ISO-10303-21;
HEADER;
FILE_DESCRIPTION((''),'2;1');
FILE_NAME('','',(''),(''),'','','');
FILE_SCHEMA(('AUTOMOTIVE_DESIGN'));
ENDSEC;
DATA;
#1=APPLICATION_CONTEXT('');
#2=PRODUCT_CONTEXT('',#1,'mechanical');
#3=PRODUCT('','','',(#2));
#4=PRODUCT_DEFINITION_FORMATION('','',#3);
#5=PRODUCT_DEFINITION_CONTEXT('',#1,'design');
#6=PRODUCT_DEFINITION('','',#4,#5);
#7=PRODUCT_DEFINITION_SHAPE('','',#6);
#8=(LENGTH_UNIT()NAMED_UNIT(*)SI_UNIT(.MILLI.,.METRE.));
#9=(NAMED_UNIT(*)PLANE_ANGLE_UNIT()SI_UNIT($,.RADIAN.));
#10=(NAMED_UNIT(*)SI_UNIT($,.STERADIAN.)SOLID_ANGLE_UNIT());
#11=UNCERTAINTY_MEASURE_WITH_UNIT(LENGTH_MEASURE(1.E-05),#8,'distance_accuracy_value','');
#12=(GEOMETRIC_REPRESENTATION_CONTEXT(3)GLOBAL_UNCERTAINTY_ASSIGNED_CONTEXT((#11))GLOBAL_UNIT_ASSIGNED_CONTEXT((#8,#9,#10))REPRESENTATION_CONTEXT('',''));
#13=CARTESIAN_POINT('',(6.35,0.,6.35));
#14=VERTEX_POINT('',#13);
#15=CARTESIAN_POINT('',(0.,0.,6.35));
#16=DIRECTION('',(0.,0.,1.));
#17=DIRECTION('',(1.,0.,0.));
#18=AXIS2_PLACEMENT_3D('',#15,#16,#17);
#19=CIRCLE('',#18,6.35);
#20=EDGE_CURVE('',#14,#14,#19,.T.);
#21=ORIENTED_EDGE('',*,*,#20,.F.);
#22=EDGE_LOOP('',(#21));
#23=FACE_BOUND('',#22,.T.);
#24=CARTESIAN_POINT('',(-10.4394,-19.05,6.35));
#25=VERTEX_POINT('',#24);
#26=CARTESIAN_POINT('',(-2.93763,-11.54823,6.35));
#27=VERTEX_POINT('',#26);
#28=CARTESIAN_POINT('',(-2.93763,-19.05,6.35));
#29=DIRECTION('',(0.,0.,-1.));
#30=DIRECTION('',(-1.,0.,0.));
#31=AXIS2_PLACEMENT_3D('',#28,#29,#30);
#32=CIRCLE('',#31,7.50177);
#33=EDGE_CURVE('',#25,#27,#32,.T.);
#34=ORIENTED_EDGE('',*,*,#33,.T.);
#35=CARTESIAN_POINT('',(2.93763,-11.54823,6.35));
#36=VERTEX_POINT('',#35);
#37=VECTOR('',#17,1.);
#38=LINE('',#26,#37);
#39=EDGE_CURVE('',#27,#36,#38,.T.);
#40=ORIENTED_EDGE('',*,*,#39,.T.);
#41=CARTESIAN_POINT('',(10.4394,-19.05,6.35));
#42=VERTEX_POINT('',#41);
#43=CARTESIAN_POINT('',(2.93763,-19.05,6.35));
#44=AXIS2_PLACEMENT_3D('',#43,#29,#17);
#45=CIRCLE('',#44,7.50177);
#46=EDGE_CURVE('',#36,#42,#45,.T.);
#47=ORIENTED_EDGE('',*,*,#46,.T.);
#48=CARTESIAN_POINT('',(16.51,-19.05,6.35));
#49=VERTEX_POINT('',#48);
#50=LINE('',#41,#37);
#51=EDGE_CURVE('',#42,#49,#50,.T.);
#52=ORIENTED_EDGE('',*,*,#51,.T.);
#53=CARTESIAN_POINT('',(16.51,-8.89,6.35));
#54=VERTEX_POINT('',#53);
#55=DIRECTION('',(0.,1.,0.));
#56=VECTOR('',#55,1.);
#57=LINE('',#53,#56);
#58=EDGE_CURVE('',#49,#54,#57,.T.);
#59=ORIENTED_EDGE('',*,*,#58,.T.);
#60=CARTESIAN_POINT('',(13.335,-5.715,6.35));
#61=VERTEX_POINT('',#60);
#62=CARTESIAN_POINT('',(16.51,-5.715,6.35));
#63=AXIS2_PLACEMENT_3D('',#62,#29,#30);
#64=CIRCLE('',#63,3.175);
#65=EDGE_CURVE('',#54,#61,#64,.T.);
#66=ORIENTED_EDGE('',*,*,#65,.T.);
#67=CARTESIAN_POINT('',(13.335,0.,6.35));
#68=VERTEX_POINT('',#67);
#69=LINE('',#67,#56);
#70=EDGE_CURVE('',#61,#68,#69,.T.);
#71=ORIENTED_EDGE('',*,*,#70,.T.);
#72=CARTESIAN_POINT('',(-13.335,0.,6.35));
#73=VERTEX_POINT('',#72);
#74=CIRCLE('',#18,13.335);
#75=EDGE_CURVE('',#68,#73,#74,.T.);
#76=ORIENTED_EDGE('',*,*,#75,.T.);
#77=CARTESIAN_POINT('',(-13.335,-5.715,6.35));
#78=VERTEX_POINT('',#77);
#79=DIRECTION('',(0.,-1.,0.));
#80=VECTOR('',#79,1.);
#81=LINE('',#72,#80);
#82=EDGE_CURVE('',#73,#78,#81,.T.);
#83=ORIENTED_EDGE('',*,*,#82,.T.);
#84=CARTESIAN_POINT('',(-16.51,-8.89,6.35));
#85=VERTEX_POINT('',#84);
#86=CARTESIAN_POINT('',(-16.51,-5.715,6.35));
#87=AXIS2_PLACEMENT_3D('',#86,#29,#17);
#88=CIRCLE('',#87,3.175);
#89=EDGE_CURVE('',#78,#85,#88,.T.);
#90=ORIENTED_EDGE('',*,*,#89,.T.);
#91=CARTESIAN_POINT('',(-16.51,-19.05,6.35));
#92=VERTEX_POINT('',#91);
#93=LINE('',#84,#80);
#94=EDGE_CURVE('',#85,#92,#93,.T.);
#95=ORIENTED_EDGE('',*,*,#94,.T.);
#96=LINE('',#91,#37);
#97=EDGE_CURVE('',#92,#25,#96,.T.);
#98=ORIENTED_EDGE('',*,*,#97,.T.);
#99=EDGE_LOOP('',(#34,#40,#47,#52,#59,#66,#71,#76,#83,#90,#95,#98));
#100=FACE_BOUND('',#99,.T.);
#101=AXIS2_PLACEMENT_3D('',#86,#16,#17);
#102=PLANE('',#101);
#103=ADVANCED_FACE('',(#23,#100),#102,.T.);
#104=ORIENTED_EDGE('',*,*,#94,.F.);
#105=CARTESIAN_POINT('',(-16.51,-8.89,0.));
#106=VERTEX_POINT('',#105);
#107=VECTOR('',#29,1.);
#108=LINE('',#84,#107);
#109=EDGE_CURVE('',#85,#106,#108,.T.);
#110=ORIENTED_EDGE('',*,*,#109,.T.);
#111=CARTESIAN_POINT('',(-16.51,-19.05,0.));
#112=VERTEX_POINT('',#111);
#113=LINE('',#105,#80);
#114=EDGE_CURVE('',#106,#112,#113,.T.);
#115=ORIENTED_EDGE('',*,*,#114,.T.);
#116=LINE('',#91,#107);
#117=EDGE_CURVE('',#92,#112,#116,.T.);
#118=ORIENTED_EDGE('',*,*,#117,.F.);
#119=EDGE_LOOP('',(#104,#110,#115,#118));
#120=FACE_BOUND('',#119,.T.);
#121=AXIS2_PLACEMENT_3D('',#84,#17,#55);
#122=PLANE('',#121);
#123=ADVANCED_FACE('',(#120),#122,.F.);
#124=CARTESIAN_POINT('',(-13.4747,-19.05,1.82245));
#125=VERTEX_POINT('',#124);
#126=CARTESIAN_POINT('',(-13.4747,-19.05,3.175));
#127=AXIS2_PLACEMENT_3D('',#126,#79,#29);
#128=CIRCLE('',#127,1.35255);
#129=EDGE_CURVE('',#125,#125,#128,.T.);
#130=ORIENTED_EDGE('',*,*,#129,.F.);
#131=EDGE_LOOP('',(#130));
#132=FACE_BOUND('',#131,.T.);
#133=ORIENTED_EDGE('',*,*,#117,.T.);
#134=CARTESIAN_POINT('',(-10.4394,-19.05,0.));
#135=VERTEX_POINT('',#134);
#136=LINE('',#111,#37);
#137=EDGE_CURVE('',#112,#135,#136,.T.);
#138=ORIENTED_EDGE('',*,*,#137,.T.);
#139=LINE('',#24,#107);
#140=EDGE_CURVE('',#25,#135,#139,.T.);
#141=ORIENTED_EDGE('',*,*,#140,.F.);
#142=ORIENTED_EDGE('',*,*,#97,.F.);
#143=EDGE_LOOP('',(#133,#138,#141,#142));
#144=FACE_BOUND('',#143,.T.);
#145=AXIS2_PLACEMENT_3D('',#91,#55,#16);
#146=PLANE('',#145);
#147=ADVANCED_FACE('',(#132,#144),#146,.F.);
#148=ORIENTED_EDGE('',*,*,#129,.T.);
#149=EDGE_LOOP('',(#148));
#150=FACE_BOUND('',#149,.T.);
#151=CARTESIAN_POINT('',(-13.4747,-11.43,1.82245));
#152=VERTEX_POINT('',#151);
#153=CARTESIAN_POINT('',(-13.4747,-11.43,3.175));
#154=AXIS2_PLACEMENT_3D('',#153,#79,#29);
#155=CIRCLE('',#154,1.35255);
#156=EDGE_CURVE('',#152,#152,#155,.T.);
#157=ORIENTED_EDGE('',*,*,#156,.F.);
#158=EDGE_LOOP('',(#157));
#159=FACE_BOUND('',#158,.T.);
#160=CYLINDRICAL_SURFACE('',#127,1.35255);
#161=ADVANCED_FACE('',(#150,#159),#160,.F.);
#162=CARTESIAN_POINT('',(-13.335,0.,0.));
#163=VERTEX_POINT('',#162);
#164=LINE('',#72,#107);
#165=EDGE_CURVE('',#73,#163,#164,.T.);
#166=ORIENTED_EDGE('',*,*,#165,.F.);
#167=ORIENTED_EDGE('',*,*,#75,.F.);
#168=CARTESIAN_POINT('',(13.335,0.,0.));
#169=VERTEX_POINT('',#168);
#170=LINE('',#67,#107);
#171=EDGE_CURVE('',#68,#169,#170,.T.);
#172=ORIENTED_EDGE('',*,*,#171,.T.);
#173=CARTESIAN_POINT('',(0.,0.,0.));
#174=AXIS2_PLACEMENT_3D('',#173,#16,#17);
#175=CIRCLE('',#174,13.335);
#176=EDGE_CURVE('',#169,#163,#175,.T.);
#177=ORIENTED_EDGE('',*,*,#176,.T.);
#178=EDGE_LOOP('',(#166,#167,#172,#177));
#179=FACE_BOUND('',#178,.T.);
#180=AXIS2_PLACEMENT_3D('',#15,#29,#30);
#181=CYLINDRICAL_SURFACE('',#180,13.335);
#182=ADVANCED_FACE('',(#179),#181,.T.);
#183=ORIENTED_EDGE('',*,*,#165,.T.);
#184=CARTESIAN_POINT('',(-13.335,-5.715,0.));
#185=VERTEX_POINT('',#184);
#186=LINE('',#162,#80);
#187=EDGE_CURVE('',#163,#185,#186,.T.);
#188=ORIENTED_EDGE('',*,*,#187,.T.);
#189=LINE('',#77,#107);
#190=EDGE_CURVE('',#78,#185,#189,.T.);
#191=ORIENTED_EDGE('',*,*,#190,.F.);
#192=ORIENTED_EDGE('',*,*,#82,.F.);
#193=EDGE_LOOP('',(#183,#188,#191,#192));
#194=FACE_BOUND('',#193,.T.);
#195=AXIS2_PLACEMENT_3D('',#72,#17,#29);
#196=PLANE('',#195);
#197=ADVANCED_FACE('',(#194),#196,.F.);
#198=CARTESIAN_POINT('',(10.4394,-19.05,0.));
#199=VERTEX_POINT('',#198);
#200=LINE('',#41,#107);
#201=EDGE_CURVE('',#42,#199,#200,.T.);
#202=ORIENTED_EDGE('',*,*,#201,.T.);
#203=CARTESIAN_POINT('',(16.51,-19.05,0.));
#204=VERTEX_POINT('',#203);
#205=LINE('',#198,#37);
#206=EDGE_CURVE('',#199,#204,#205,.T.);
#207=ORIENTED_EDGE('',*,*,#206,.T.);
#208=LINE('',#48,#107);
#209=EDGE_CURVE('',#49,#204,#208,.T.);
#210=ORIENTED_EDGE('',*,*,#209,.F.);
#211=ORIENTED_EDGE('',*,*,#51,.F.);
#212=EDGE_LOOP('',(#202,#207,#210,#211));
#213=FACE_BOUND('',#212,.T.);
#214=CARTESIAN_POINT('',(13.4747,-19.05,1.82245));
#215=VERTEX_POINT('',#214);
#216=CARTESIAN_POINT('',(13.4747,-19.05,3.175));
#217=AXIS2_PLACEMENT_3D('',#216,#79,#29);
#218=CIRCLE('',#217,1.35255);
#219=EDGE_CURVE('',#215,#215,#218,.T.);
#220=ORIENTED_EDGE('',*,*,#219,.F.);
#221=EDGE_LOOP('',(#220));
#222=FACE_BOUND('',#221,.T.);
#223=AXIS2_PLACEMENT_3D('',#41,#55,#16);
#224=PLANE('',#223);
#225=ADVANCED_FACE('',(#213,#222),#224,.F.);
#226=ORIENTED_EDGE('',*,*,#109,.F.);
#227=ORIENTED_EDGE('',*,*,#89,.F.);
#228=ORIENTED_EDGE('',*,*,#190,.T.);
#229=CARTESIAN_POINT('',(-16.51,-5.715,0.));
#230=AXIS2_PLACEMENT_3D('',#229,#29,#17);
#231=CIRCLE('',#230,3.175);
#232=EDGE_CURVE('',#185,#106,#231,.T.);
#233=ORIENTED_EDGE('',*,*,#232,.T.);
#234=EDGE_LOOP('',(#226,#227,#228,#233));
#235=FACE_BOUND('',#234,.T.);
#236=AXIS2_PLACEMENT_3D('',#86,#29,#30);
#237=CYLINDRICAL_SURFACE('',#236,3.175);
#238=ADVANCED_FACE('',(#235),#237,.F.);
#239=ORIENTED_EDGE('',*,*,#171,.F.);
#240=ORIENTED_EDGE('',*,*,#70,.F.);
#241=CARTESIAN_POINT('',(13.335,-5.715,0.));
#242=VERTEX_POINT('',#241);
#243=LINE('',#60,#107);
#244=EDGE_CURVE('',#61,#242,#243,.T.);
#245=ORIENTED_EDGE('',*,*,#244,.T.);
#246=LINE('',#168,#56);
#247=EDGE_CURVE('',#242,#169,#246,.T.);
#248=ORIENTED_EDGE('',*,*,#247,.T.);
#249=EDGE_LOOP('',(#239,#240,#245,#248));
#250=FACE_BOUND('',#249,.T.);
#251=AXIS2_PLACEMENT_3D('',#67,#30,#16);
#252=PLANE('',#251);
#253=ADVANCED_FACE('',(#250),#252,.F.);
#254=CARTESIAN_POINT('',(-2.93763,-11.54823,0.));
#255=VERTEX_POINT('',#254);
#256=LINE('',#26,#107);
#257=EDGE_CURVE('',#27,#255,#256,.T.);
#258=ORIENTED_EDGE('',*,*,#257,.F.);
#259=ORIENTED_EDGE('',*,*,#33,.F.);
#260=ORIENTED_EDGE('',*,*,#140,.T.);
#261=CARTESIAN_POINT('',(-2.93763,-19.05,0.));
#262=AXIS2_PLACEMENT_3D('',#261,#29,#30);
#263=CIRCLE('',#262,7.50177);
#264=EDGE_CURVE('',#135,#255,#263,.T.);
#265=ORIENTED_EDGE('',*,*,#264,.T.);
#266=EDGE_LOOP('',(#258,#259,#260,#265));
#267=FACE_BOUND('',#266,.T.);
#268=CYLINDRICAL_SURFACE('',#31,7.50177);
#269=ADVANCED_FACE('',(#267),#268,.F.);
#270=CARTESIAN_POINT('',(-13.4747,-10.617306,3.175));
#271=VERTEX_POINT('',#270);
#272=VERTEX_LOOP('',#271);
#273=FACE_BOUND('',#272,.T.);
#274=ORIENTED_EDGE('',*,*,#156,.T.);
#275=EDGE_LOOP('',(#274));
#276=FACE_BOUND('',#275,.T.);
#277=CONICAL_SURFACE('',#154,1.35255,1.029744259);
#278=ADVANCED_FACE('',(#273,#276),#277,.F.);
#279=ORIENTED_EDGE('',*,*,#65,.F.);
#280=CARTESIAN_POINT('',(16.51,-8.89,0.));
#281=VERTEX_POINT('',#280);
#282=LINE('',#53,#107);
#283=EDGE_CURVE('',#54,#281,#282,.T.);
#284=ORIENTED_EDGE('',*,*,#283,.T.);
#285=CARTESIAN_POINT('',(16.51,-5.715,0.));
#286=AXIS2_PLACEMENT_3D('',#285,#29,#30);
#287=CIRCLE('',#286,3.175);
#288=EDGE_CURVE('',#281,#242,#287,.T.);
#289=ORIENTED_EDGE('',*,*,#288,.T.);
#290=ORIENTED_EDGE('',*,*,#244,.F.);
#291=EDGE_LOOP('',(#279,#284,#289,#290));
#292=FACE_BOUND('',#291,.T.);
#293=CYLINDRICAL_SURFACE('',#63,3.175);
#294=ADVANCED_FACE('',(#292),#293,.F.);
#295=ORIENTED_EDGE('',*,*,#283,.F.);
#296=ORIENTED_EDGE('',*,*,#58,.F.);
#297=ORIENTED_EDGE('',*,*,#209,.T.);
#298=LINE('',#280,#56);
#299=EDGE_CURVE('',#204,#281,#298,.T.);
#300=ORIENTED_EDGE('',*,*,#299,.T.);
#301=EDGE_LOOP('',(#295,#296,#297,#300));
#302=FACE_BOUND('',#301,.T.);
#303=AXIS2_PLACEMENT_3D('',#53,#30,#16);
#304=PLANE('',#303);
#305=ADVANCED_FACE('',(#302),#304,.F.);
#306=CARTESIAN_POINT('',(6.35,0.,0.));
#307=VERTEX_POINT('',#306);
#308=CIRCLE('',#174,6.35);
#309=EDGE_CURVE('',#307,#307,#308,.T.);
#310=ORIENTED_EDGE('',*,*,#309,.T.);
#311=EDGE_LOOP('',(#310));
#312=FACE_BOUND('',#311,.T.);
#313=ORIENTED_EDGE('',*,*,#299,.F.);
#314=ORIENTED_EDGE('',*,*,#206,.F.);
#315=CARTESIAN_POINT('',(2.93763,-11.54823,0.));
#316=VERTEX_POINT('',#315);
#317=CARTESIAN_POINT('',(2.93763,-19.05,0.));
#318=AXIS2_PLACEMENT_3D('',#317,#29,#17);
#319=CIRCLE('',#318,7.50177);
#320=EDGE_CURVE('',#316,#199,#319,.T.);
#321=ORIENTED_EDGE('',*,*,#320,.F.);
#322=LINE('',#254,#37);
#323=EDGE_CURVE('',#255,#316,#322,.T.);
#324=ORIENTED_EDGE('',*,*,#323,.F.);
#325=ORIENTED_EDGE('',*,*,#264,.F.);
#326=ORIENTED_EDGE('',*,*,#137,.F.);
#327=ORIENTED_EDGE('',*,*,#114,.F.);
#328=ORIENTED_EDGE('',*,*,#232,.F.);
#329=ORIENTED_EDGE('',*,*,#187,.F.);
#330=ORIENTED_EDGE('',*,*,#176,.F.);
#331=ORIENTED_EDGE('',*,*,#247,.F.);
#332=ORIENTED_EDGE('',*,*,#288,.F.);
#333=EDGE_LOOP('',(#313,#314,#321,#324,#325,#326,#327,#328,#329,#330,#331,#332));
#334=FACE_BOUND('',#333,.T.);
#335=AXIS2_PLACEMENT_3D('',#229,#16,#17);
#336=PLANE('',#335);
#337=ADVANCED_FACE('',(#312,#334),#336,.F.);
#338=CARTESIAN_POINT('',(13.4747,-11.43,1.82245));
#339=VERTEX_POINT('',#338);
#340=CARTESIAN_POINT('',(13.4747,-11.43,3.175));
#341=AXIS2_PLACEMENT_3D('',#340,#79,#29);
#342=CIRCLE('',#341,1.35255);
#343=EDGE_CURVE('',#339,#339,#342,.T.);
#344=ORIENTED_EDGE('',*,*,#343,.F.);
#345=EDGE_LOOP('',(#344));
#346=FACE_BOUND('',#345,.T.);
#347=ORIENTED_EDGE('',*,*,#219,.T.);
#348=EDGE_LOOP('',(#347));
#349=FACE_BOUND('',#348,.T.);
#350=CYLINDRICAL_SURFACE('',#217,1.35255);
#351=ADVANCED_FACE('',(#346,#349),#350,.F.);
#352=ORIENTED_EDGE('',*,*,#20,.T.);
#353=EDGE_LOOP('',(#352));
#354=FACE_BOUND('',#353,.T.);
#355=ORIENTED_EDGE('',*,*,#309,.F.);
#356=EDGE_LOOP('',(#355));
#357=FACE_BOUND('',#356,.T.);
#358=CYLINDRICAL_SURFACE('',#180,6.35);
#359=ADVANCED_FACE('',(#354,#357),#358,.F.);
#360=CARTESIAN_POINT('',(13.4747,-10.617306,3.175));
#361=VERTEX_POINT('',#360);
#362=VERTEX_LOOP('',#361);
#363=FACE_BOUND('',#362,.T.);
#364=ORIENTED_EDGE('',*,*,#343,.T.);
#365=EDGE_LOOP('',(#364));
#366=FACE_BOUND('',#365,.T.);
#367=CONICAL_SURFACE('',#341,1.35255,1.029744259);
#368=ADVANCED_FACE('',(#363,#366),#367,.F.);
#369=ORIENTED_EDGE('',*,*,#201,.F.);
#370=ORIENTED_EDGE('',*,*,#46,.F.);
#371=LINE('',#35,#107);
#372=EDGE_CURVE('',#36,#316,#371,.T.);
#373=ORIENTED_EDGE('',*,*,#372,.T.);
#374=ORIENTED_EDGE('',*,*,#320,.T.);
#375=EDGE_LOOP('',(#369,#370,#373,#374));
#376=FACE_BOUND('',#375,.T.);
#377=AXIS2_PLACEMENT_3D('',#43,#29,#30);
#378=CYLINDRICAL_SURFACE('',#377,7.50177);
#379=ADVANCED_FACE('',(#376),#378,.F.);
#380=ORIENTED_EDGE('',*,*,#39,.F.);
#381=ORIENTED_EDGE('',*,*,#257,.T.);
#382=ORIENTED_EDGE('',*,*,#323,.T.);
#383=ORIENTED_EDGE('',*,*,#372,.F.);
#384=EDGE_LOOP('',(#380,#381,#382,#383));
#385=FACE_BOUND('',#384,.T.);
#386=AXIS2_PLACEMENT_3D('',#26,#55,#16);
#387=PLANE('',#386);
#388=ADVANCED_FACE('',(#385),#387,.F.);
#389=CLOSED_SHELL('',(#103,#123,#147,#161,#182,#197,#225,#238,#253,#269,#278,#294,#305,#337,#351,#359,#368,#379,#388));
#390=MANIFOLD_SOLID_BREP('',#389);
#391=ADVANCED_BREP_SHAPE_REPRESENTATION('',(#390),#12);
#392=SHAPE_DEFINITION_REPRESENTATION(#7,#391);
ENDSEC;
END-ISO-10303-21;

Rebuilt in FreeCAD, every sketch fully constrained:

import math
import FreeCAD as App
import Part
import Sketcher
Q = App.Units.Quantity


def add_polygon(sketch, points):
    """Adds a closed chain of lines whose ends are joined by coincident constraints."""
    first, n = sketch.GeometryCount, len(points)
    for a, b in zip(points, points[1:] + points[:1]):
        sketch.addGeometry(Part.LineSegment(App.Vector(*a, 0), App.Vector(*b, 0)), False)
    for i in range(n):
        sketch.addConstraint(Sketcher.Constraint("Coincident", first + i, 2, first + (i + 1) % n, 1))

doc = App.newDocument("Part")
body = doc.addObject("PartDesign::Body", "Body")

sketch1 = body.newObject("Sketcher::SketchObject", "Sketch")
sketch1.AttachmentSupport = (doc.getObject("XY_Plane"), [""])
sketch1.MapMode = "FlatFace"
sketch1.addGeometry([
    Part.LineSegment(App.Vector(-13.3, 0, 0), App.Vector(-13.3, -5.7, 0)),
    Part.ArcOfCircle(Part.Circle(App.Vector(-16.5, -5.7, 0), App.Vector(0, 0, 1), 3.2), math.radians(-90), math.radians(0)),
    Part.LineSegment(App.Vector(-16.5, -8.9, 0), App.Vector(-16.5, -19.1, 0)),
    Part.LineSegment(App.Vector(-16.5, -19.1, 0), App.Vector(-10.4, -19.1, 0)),
    Part.ArcOfCircle(Part.Circle(App.Vector(-2.9, -19.1, 0), App.Vector(0, 0, 1), 7.5), math.radians(90), math.radians(180)),
    Part.LineSegment(App.Vector(-2.9, -11.5, 0), App.Vector(2.9, -11.5, 0)),
    Part.ArcOfCircle(Part.Circle(App.Vector(2.9, -19.1, 0), App.Vector(0, 0, 1), 7.5), math.radians(0), math.radians(90)),
    Part.LineSegment(App.Vector(10.4, -19.1, 0), App.Vector(16.5, -19.1, 0)),
    Part.LineSegment(App.Vector(16.5, -19.1, 0), App.Vector(16.5, -8.9, 0)),
    Part.ArcOfCircle(Part.Circle(App.Vector(16.5, -5.7, 0), App.Vector(0, 0, 1), 3.2), math.radians(-180), math.radians(-90)),
    Part.LineSegment(App.Vector(13.3, -5.7, 0), App.Vector(13.3, 0, 0)),
    Part.ArcOfCircle(Part.Circle(App.Vector(0, 0, 0), App.Vector(0, 0, 1), 13.3), math.radians(0), math.radians(180)),
    Part.Circle(App.Vector(0, 0, 0), App.Vector(0, 0, 1), 6.3),
], False)
sketch1.addConstraint([
    Sketcher.Constraint("Tangent", 0, 2, 1, 2),
    Sketcher.Constraint("Coincident", 1, 1, 2, 1),
    Sketcher.Constraint("Coincident", 2, 2, 3, 1),
    Sketcher.Constraint("Coincident", 3, 2, 4, 2),
    Sketcher.Constraint("Tangent", 4, 1, 5, 1),
    Sketcher.Constraint("Tangent", 5, 2, 6, 2),
    Sketcher.Constraint("Coincident", 6, 1, 7, 1),
    Sketcher.Constraint("Coincident", 7, 2, 8, 1),
    Sketcher.Constraint("Coincident", 8, 2, 9, 2),
    Sketcher.Constraint("Tangent", 9, 1, 10, 1),
    Sketcher.Constraint("Tangent", 10, 2, 11, 1),
    Sketcher.Constraint("Tangent", 11, 2, 0, 1),
    Sketcher.Constraint("Vertical", 0),
    Sketcher.Constraint("Vertical", 2),
    Sketcher.Constraint("Horizontal", 3),
    Sketcher.Constraint("Horizontal", 5),
    Sketcher.Constraint("Horizontal", 7),
    Sketcher.Constraint("Vertical", 8),
    Sketcher.Constraint("Vertical", 10),
    Sketcher.Constraint("Coincident", 11, 3, -1, 1),
    Sketcher.Constraint("Coincident", 12, 3, -1, 1),
    Sketcher.Constraint("Equal", 4, 6),
    Sketcher.Constraint("Equal", 1, 9),
    Sketcher.Constraint("Symmetric", 3, 2, 6, 1, -2),
    Sketcher.Constraint("Symmetric", 1, 1, 8, 2, -2),
    Sketcher.Constraint("Horizontal", 6, 3, 2, 2),
    Sketcher.Constraint("Vertical", 9, 3, 7, 2),
    Sketcher.Constraint("Diameter", 12, Q("0.5 in")),
    Sketcher.Constraint("DistanceY", 2, 2, 2, 1, Q("0.4 in")),
    Sketcher.Constraint("Radius", 1, Q("0.125 in")),
    Sketcher.Constraint("Radius", 11, Q("0.525 in")),
    Sketcher.Constraint("DistanceX", 3, 1, 3, 2, Q("0.239 in")),
    Sketcher.Constraint("DistanceY", 0, 2, 0, 1, Q("0.225 in")),
    Sketcher.Constraint("Radius", 4, 7.50177),
])
pad1 = body.newObject("PartDesign::Pad", "Pad")
pad1.Profile = sketch1
pad1.Length = Q("0.25 in")

sketch2 = body.newObject("Sketcher::SketchObject", "Sketch001")
sketch2.AttachmentSupport = (doc.getObject("YZ_Plane"), [""])
sketch2.MapMode = "FlatFace"
sketch2.AttachmentOffset = App.Placement(App.Vector(0, 0, -0.5305 * 25.4), App.Rotation())
add_polygon(sketch2, [(-10.6, 3.2), (-19.1, 3.2), (-19.1, 1.8), (-11.4, 1.8)])
sketch2.addGeometry(Part.LineSegment(App.Vector(-19.1, 3.2, 0), App.Vector(-10.6, 3.2, 0)), True)
sketch2.addConstraint([
    Sketcher.Constraint("Horizontal", 0),
    Sketcher.Constraint("Vertical", 1),
    Sketcher.Constraint("Horizontal", 2),
    Sketcher.Constraint("Horizontal", 4),
    Sketcher.Constraint("Coincident", 4, 1, 0, 2),
    Sketcher.Constraint("Equal", 0, 4),
    Sketcher.Constraint("DistanceX", 2, 1, 2, 2, Q("0.3 in")),
    Sketcher.Constraint("Angle", 3, Q("59 deg")),
    Sketcher.Constraint("DistanceX", 0, 2, -1, 1, Q("0.75 in")),
    Sketcher.Constraint("DistanceY", -1, 1, 0, 2, Q("0.125 in")),
    Sketcher.Constraint("DistanceY", 1, 2, 1, 1, 1.35255),
])
groove = body.newObject("PartDesign::Groove", "Groove")
groove.Profile = sketch2
groove.ReferenceAxis = (sketch2, ["Axis0"])
groove.Angle = 360
doc.recompute()

mirrored = body.newObject("PartDesign::Mirrored", "Mirrored")
mirrored.Originals = [groove]
mirrored.MirrorPlane = (doc.getObject("YZ_Plane"), [""])
body.Tip = mirrored

doc.recompute()
